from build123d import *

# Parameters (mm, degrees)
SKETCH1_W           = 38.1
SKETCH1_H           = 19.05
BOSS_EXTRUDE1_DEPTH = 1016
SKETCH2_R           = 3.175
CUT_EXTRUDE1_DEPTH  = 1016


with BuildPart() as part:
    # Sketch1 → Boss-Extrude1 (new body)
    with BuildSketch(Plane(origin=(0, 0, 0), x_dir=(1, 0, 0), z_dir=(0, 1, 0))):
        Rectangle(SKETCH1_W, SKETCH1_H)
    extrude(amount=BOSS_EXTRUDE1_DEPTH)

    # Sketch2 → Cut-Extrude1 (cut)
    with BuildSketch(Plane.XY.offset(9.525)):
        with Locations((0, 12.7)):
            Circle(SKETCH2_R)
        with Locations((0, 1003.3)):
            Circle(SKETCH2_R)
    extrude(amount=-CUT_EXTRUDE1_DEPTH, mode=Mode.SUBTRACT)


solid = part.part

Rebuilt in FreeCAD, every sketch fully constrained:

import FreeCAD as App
import Part
import Sketcher
from FreeCAD import Vector
Q = App.Units.Quantity


def add_polygon(sketch, points):
    """Adds a closed chain of lines whose ends are joined by coincident constraints."""
    first, n = sketch.GeometryCount, len(points)
    for a, b in zip(points, points[1:] + points[:1]):
        sketch.addGeometry(Part.LineSegment(App.Vector(*a, 0), App.Vector(*b, 0)), False)
    for i in range(n):
        sketch.addConstraint(Sketcher.Constraint("Coincident", first + i, 2, first + (i + 1) % n, 1))

doc = App.newDocument("Part")
body = doc.addObject("PartDesign::Body", "Body")

# Sketch on XZ plane
sketch1 = body.newObject("Sketcher::SketchObject", "Sketch")
sketch1.AttachmentSupport = (doc.getObject("XZ_Plane"), [""])
sketch1.MapMode = "FlatFace"
add_polygon(sketch1, [(-19, -10), (-19, 10), (19, 10), (19, -10)])  # lines 0-3
sketch1.addConstraint(Sketcher.Constraint("Vertical", 0))
sketch1.addConstraint(Sketcher.Constraint("Horizontal", 1))
sketch1.addConstraint(Sketcher.Constraint("Vertical", 2))
sketch1.addConstraint(Sketcher.Constraint("Horizontal", 3))
sketch1.addConstraint(Sketcher.Constraint("Symmetric", 0, 2, 2, 2, -1, 1))
sketch1.addConstraint(Sketcher.Constraint("DistanceX", 1, 1, 1, 2, Q("1.5 in")))
sketch1.addConstraint(Sketcher.Constraint("DistanceY", 0, 1, 0, 2, Q("0.75 in")))
pad1 = body.newObject("PartDesign::Pad", "Pad")
pad1.Profile = sketch1
pad1.Length = Q("40 in")
pad1.Reversed = True

# Sketch on XY plane
sketch2 = body.newObject("Sketcher::SketchObject", "Sketch001")
sketch2.AttachmentSupport = (doc.getObject("XY_Plane"), [""])
sketch2.MapMode = "FlatFace"
sketch2.AttachmentOffset = App.Placement(Vector(0, 0, 0.375 * 25.4), App.Rotation())
sketch2.addGeometry(Part.Circle(Vector(0, 12.7, 0), Vector(0, 0, 1), 3.2), False)
sketch2.addGeometry(Part.Circle(Vector(0, 1003.3, 0), Vector(0, 0, 1), 3.2), False)
sketch2.addConstraint(Sketcher.Constraint("Equal", 0, 1))
sketch2.addConstraint(Sketcher.Constraint("PointOnObject", 0, 3, -2))
sketch2.addConstraint(Sketcher.Constraint("PointOnObject", 1, 3, -2))
sketch2.addConstraint(Sketcher.Constraint("Diameter", 0, Q("0.25 in")))
sketch2.addConstraint(Sketcher.Constraint("DistanceY", 0, 3, 1, 3, Q("39 in")))
sketch2.addConstraint(Sketcher.Constraint("DistanceY", -1, 1, 0, 3, Q("0.5 in")))
pocket1 = body.newObject("PartDesign::Pocket", "Pocket")
pocket1.Profile = sketch2
pocket1.Length = Q("40 in")

doc.recompute()
